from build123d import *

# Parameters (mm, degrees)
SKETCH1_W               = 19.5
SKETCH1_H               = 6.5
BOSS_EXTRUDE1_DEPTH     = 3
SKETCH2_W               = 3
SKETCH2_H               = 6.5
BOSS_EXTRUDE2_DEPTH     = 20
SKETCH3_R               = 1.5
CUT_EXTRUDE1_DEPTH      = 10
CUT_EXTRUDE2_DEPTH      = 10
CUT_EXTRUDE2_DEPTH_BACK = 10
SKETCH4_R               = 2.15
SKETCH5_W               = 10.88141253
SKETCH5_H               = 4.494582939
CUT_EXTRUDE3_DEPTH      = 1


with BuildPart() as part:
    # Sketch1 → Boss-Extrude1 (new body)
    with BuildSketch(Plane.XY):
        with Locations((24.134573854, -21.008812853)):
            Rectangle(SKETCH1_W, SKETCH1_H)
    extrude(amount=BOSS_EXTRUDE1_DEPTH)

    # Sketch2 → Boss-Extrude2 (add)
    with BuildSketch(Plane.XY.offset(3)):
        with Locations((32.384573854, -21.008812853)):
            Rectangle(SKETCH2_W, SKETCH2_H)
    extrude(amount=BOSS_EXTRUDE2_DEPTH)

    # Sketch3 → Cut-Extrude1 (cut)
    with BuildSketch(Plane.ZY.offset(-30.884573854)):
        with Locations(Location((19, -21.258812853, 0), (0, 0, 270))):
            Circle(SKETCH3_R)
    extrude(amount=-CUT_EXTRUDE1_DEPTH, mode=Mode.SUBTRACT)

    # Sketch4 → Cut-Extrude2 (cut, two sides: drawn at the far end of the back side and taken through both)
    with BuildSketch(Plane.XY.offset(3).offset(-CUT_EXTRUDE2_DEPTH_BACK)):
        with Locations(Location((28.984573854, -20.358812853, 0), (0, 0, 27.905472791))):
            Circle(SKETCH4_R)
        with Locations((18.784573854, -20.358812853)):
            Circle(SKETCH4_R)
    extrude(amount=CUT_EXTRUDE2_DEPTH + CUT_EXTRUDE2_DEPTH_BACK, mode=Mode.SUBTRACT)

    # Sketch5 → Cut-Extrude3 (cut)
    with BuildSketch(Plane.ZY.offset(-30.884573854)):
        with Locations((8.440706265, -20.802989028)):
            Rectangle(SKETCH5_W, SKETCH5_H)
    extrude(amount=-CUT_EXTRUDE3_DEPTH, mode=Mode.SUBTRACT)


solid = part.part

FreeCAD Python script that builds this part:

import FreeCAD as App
import Part
import Sketcher
from FreeCAD import Vector


def add_polygon(sketch, points):
    """Adds a closed chain of lines whose ends are joined by coincident constraints."""
    first, n = sketch.GeometryCount, len(points)
    for a, b in zip(points, points[1:] + points[:1]):
        sketch.addGeometry(Part.LineSegment(App.Vector(*a, 0), App.Vector(*b, 0)), False)
    for i in range(n):
        sketch.addConstraint(Sketcher.Constraint("Coincident", first + i, 2, first + (i + 1) % n, 1))

doc = App.newDocument("Part")
body = doc.addObject("PartDesign::Body", "Body")

# Sketch on XY plane
sketch1 = body.newObject("Sketcher::SketchObject", "Sketch")
sketch1.AttachmentSupport = (doc.getObject("XY_Plane"), [""])
sketch1.MapMode = "FlatFace"
add_polygon(sketch1, [(14, -18), (14, -24), (34, -24), (34, -18)])  # lines 0-3
sketch1.addConstraint([
    Sketcher.Constraint("Vertical", 0),
    Sketcher.Constraint("Horizontal", 1),
    Sketcher.Constraint("Vertical", 2),
    Sketcher.Constraint("Horizontal", 3),
    Sketcher.Constraint("DistanceX", 1, 1, 1, 2, 19.5),
    Sketcher.Constraint("DistanceY", 0, 2, 0, 1, 6.5),
    Sketcher.Constraint("DistanceX", -1, 1, 0, 2, 14.384574),
    Sketcher.Constraint("DistanceY", 0, 2, -1, 1, 24.258813),
])
pad1 = body.newObject("PartDesign::Pad", "Pad")
pad1.Profile = sketch1
pad1.Length = 3

# Sketch on XY plane
sketch2 = body.newObject("Sketcher::SketchObject", "Sketch001")
sketch2.AttachmentSupport = (doc.getObject("XY_Plane"), [""])
sketch2.MapMode = "FlatFace"
sketch2.AttachmentOffset = App.Placement(Vector(0, 0, 3), App.Rotation())
add_polygon(sketch2, [(30.9, -17.8), (30.9, -24.3), (33.9, -24.3), (33.9, -17.8)])  # lines 0-3
sketch2.addConstraint([
    Sketcher.Constraint("Vertical", 0),
    Sketcher.Constraint("Horizontal", 1),
    Sketcher.Constraint("Vertical", 2),
    Sketcher.Constraint("Horizontal", 3),
    Sketcher.Constraint("DistanceX", 1, 1, 1, 2, 3.0),
    Sketcher.Constraint("DistanceY", 0, 2, 0, 1, 6.5),
    Sketcher.Constraint("DistanceX", -1, 1, 0, 2, 30.884574),
    Sketcher.Constraint("DistanceY", 0, 2, -1, 1, 24.258813),
])
pad2 = body.newObject("PartDesign::Pad", "Pad001")
pad2.Profile = sketch2
pad2.Length = 20

# Sketch on YZ plane
sketch3 = body.newObject("Sketcher::SketchObject", "Sketch002")
sketch3.AttachmentSupport = (doc.getObject("YZ_Plane"), [""])
sketch3.MapMode = "FlatFace"
sketch3.AttachmentOffset = App.Placement(Vector(0, 0, 30.884574), App.Rotation())
sketch3.addGeometry(Part.Circle(Vector(-21.3, 19, 0), Vector(0, 0, 1), 1.5), False)
sketch3.addConstraint([
    Sketcher.Constraint("Diameter", 0, 3.0),
    Sketcher.Constraint("DistanceY", -1, 1, 0, 3, 19.0),
    Sketcher.Constraint("DistanceX", 0, 3, -1, 1, 21.258813),
])
pocket1 = body.newObject("PartDesign::Pocket", "Pocket")
pocket1.Profile = sketch3
pocket1.Length = 10
pocket1.Reversed = True

# Sketch on XY plane
sketch4 = body.newObject("Sketcher::SketchObject", "Sketch003")
sketch4.AttachmentSupport = (doc.getObject("XY_Plane"), [""])
sketch4.MapMode = "FlatFace"
sketch4.AttachmentOffset = App.Placement(Vector(0, 0, 3), App.Rotation())
sketch4.addGeometry([
    Part.Circle(Vector(29, -20.4, 0), Vector(0, 0, 1), 2.1),
    Part.Circle(Vector(18.8, -20.4, 0), Vector(0, 0, 1), 2.1),
], False)
sketch4.addConstraint([
    Sketcher.Constraint("Equal", 0, 1),
    Sketcher.Constraint("Horizontal", 0, 3, 1, 3),
    Sketcher.Constraint("Diameter", 0, 4.3),
    Sketcher.Constraint("DistanceX", 1, 3, 0, 3, 10.2),
    Sketcher.Constraint("DistanceX", -1, 1, 0, 3, 28.984574),
    Sketcher.Constraint("DistanceY", 0, 3, -1, 1, 20.358813),
])
pocket2 = body.newObject("PartDesign::Pocket", "Pocket001")
pocket2.Profile = sketch4
pocket2.Type = "TwoLengths"
pocket2.Length = 10
pocket2.Length2 = 10
pocket2.Reversed = True

# Sketch on YZ plane
sketch5 = body.newObject("Sketcher::SketchObject", "Sketch004")
sketch5.AttachmentSupport = (doc.getObject("YZ_Plane"), [""])
sketch5.MapMode = "FlatFace"
sketch5.AttachmentOffset = App.Placement(Vector(0, 0, 30.884574), App.Rotation())
add_polygon(sketch5, [(-18.6, 3), (-23.1, 3), (-23.1, 13.9), (-18.6, 13.9)])  # lines 0-3
sketch5.addConstraint([
    Sketcher.Constraint("Horizontal", 0),
    Sketcher.Constraint("Vertical", 1),
    Sketcher.Constraint("Horizontal", 2),
    Sketcher.Constraint("Vertical", 3),
    Sketcher.Constraint("DistanceY", -1, 1, 0, 2, 3.0),
    Sketcher.Constraint("DistanceX", 0, 2, 0, 1, 4.494583),
    Sketcher.Constraint("DistanceY", 1, 1, 1, 2, 10.881413),
    Sketcher.Constraint("DistanceX", 0, 2, -1, 1, 23.05028),
])
pocket3 = body.newObject("PartDesign::Pocket", "Pocket002")
pocket3.Profile = sketch5
pocket3.Length = 1
pocket3.Reversed = True

doc.recompute()
